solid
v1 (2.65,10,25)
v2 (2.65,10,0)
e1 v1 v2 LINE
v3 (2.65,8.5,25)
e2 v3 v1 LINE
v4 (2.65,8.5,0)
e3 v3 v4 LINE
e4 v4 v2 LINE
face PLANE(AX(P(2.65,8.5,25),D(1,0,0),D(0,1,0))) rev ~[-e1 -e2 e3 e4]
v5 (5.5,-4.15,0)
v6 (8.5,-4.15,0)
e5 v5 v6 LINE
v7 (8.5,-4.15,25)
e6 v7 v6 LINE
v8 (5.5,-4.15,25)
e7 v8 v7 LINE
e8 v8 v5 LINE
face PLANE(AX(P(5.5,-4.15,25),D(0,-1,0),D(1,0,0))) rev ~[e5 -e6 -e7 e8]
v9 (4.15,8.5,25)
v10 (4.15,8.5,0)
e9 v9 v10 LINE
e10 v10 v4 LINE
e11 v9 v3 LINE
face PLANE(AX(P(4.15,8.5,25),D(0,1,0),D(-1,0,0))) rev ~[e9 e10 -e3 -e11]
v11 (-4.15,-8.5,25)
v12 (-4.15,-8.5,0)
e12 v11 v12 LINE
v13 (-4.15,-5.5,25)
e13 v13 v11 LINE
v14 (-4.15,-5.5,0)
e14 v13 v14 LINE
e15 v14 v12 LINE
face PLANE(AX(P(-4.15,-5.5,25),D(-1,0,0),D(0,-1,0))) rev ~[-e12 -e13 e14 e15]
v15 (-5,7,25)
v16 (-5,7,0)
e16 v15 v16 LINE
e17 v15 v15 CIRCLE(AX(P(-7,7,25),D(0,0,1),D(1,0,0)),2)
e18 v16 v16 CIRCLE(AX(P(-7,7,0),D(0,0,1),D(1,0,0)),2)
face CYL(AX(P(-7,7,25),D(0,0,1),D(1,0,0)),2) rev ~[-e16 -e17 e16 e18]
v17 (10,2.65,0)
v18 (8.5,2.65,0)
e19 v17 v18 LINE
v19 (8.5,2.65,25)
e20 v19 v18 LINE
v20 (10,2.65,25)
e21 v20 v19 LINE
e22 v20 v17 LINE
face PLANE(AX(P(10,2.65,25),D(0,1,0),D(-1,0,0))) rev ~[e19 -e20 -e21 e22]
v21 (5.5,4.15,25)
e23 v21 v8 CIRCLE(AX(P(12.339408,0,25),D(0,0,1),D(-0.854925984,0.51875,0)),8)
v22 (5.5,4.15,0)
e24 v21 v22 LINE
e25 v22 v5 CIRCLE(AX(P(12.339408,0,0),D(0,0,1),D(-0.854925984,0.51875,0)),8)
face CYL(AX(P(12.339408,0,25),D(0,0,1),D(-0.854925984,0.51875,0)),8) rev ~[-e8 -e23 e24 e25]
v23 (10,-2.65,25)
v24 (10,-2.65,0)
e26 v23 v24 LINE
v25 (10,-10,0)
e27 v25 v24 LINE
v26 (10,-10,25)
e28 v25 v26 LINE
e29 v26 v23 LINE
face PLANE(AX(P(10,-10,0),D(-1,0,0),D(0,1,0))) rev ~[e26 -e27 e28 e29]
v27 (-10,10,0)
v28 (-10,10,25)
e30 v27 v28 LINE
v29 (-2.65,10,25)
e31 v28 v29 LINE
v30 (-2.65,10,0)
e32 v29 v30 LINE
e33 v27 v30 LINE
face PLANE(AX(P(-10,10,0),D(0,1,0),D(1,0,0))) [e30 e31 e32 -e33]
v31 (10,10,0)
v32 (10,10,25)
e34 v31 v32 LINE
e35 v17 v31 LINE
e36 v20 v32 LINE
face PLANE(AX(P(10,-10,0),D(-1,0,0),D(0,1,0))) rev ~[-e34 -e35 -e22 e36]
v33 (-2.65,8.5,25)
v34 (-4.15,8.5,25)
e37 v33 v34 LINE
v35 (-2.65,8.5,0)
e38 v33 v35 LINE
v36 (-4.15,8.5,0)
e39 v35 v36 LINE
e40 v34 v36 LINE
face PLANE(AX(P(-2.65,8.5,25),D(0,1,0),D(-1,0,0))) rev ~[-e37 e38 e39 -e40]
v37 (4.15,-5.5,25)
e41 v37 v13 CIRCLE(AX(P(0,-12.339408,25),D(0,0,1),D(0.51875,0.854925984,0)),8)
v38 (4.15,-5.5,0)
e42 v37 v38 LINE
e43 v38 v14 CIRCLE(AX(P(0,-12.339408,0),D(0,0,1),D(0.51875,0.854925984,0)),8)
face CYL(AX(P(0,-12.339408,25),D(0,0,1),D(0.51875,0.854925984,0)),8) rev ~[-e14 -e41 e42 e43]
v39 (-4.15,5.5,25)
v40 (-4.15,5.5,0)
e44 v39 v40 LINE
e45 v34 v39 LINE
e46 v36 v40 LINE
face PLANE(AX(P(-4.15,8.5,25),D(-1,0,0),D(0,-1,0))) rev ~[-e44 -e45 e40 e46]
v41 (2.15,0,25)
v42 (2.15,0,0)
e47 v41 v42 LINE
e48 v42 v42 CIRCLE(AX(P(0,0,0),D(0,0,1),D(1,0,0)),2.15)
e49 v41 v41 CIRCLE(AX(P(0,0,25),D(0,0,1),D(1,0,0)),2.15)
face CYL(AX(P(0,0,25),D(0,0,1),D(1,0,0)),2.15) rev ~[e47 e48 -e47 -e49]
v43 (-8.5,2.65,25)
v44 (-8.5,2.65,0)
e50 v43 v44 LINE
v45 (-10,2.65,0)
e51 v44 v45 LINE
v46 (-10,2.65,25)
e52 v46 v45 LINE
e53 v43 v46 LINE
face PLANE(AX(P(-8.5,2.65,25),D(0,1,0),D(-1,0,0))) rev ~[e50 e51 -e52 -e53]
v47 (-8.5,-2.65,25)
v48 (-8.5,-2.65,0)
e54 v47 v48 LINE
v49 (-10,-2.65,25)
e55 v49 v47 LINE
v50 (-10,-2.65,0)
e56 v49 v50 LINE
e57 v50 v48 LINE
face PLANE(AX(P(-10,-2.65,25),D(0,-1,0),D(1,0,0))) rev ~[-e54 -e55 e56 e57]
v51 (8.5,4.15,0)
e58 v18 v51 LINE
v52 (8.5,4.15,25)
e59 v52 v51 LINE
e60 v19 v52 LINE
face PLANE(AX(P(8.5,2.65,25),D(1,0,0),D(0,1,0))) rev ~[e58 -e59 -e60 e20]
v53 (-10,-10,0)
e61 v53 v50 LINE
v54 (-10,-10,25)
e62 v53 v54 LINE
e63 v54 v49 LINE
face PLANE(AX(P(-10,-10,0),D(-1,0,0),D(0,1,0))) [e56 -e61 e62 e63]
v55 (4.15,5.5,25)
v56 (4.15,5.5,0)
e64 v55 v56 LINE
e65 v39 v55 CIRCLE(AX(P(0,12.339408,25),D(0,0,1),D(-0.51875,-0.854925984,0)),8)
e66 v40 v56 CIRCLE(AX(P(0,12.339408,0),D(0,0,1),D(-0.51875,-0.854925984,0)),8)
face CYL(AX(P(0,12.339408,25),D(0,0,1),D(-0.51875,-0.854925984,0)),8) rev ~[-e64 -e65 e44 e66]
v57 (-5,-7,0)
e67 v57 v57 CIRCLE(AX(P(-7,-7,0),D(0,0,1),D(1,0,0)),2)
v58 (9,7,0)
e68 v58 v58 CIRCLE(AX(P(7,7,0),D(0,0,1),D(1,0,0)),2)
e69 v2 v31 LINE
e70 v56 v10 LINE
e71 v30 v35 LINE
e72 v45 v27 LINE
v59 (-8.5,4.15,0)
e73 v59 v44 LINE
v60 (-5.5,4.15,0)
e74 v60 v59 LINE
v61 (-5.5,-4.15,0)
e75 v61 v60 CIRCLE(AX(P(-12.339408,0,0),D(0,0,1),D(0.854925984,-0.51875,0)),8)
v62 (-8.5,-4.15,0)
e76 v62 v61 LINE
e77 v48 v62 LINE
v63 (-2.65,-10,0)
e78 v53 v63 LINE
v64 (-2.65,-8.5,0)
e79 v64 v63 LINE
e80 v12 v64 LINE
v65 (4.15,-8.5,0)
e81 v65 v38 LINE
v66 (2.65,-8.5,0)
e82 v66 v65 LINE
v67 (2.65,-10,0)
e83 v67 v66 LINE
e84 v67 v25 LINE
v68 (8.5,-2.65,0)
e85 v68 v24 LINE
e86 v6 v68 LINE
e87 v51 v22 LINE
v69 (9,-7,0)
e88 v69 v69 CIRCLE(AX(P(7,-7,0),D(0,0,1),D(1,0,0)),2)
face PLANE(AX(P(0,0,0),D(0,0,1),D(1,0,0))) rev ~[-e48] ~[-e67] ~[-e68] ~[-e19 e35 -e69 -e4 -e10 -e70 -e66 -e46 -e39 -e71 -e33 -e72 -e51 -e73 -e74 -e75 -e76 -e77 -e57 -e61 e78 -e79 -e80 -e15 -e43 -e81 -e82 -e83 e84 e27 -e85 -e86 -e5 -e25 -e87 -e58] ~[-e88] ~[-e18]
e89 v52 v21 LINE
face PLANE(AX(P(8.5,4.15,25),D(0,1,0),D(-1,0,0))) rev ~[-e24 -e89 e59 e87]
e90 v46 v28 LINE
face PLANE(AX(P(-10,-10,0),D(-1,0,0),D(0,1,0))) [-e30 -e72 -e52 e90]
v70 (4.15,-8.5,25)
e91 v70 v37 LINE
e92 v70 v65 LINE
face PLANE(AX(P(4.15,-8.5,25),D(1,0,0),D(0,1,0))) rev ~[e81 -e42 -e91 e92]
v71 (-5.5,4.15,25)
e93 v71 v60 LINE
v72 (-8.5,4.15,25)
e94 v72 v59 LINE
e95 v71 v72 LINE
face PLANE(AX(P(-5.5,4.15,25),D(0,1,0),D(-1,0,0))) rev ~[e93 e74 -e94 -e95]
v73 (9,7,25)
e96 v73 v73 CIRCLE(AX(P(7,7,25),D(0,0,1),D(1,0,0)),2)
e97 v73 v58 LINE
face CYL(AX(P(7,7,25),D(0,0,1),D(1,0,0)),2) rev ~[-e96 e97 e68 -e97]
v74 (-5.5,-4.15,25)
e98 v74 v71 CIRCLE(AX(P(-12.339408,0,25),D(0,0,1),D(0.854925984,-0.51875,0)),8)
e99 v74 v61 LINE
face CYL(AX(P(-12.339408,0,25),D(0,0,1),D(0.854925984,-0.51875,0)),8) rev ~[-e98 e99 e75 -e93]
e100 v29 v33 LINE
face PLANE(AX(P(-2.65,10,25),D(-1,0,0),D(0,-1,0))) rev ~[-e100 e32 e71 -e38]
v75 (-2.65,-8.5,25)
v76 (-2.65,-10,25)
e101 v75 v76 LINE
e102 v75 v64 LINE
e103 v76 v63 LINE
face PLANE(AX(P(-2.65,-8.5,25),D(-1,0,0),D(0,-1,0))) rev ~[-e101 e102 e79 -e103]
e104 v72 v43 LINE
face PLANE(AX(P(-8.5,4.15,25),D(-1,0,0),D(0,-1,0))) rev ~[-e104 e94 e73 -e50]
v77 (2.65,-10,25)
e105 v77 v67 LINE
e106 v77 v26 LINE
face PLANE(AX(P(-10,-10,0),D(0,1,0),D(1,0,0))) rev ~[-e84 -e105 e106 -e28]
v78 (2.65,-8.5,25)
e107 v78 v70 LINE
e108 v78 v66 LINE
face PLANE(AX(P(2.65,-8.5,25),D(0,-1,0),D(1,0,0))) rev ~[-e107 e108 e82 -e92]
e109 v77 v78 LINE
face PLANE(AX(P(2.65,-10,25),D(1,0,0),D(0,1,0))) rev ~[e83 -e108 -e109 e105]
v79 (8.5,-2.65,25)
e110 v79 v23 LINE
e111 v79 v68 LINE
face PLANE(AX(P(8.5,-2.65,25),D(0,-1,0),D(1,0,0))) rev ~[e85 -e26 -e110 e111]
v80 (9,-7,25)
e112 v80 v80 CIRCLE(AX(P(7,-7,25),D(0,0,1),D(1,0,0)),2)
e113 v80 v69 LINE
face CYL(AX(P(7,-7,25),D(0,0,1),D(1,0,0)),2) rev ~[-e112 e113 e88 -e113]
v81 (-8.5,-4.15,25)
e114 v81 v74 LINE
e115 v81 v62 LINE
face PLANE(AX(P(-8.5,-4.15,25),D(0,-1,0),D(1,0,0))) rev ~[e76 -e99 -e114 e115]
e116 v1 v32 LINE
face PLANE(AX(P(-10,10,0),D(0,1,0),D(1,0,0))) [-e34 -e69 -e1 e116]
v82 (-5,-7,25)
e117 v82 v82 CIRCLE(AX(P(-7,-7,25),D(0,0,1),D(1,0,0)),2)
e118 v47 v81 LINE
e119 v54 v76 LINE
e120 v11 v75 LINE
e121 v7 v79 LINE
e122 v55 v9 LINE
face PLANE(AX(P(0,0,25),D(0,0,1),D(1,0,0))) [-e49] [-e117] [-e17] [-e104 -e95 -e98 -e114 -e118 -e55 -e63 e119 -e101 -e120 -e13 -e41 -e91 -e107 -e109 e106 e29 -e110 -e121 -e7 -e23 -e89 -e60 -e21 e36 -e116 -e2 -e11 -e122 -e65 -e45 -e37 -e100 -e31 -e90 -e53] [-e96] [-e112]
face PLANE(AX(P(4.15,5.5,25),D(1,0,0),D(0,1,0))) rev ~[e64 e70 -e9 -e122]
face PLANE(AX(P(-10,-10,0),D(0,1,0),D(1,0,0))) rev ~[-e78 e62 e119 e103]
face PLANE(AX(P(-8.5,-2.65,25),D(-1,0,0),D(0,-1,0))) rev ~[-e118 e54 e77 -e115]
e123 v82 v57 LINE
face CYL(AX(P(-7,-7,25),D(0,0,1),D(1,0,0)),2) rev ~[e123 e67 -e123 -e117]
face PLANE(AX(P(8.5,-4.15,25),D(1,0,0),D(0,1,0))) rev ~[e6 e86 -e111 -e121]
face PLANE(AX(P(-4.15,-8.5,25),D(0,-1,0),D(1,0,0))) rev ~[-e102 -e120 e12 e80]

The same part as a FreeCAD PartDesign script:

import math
import FreeCAD as App
import Part
import Sketcher


def add_polygon(sketch, points):
    """Adds a closed chain of lines whose ends are joined by coincident constraints."""
    first, n = sketch.GeometryCount, len(points)
    for a, b in zip(points, points[1:] + points[:1]):
        sketch.addGeometry(Part.LineSegment(App.Vector(*a, 0), App.Vector(*b, 0)), False)
    for i in range(n):
        sketch.addConstraint(Sketcher.Constraint("Coincident", first + i, 2, first + (i + 1) % n, 1))

doc = App.newDocument("Part")
body = doc.addObject("PartDesign::Body", "Body")

sketch1 = body.newObject("Sketcher::SketchObject", "Sketch")
sketch1.AttachmentSupport = (doc.getObject("XY_Plane"), [""])
sketch1.MapMode = "FlatFace"
add_polygon(sketch1, [(-10, 10), (-10, -10), (10, -10), (10, 10)])
sketch1.addConstraint([
    Sketcher.Constraint("Vertical", 0),
    Sketcher.Constraint("Horizontal", 1),
    Sketcher.Constraint("Vertical", 2),
    Sketcher.Constraint("Horizontal", 3),
    Sketcher.Constraint("Symmetric", 0, 2, 2, 2, -1, 1),
    Sketcher.Constraint("Equal", 3, 0),
    Sketcher.Constraint("DistanceX", 1, 1, 1, 2, 20.0),
])
pad1 = body.newObject("PartDesign::Pad", "Pad")
pad1.Profile = sketch1
pad1.Length = 25

sketch2 = body.newObject("Sketcher::SketchObject", "Sketch001")
sketch2.AttachmentSupport = (doc.getObject("XY_Plane"), [""])
sketch2.MapMode = "FlatFace"
sketch2.AttachmentOffset = App.Placement(App.Vector(0, 0, 25), App.Rotation())
sketch2.addGeometry([
    Part.Circle(App.Vector(0, 0, 0), App.Vector(0, 0, 1), 2.1),
    Part.Circle(App.Vector(-7, 7, 0), App.Vector(0, 0, 1), 2),
    Part.Circle(App.Vector(7, 7, 0), App.Vector(0, 0, 1), 2),
    Part.Circle(App.Vector(7, -7, 0), App.Vector(0, 0, 1), 2),
    Part.Circle(App.Vector(-7, -7, 0), App.Vector(0, 0, 1), 2),
    Part.LineSegment(App.Vector(-2.6, 10, 0), App.Vector(-2.6, 8.5, 0)),
    Part.LineSegment(App.Vector(-2.6, 8.5, 0), App.Vector(-4.2, 8.5, 0)),
    Part.LineSegment(App.Vector(-4.2, 8.5, 0), App.Vector(-4.2, 5.5, 0)),
    Part.ArcOfCircle(Part.Circle(App.Vector(0, 12.3, 0), App.Vector(0, 0, 1), 8), math.radians(-121), math.radians(-59)),
    Part.LineSegment(App.Vector(4.2, 5.5, 0), App.Vector(4.2, 8.5, 0)),
    Part.LineSegment(App.Vector(4.2, 8.5, 0), App.Vector(2.6, 8.5, 0)),
    Part.LineSegment(App.Vector(2.6, 8.5, 0), App.Vector(2.6, 10, 0)),
    Part.LineSegment(App.Vector(2.6, 10, 0), App.Vector(-2.6, 10, 0)),
    Part.LineSegment(App.Vector(10, 2.6, 0), App.Vector(8.5, 2.6, 0)),
    Part.LineSegment(App.Vector(8.5, 2.6, 0), App.Vector(8.5, 4.2, 0)),
    Part.LineSegment(App.Vector(8.5, 4.2, 0), App.Vector(5.5, 4.2, 0)),
    Part.ArcOfCircle(Part.Circle(App.Vector(12.3, 0, 0), App.Vector(0, 0, 1), 8), math.radians(149), math.radians(211)),
    Part.LineSegment(App.Vector(5.5, -4.2, 0), App.Vector(8.5, -4.2, 0)),
    Part.LineSegment(App.Vector(8.5, -4.2, 0), App.Vector(8.5, -2.6, 0)),
    Part.LineSegment(App.Vector(8.5, -2.6, 0), App.Vector(10, -2.6, 0)),
    Part.LineSegment(App.Vector(10, -2.6, 0), App.Vector(10, 2.6, 0)),
    Part.LineSegment(App.Vector(2.6, -10, 0), App.Vector(2.6, -8.5, 0)),
    Part.LineSegment(App.Vector(2.6, -8.5, 0), App.Vector(4.2, -8.5, 0)),
    Part.LineSegment(App.Vector(4.2, -8.5, 0), App.Vector(4.2, -5.5, 0)),
    Part.ArcOfCircle(Part.Circle(App.Vector(0, -12.3, 0), App.Vector(0, 0, 1), 8), math.radians(59), math.radians(121)),
    Part.LineSegment(App.Vector(-4.2, -5.5, 0), App.Vector(-4.2, -8.5, 0)),
    Part.LineSegment(App.Vector(-4.2, -8.5, 0), App.Vector(-2.6, -8.5, 0)),
    Part.LineSegment(App.Vector(-2.6, -8.5, 0), App.Vector(-2.6, -10, 0)),
    Part.LineSegment(App.Vector(-2.6, -10, 0), App.Vector(2.6, -10, 0)),
    Part.LineSegment(App.Vector(-10, -2.6, 0), App.Vector(-8.5, -2.6, 0)),
    Part.LineSegment(App.Vector(-8.5, -2.6, 0), App.Vector(-8.5, -4.2, 0)),
    Part.LineSegment(App.Vector(-8.5, -4.2, 0), App.Vector(-5.5, -4.2, 0)),
    Part.ArcOfCircle(Part.Circle(App.Vector(-12.3, 0, 0), App.Vector(0, 0, 1), 8), math.radians(-31), math.radians(31)),
    Part.LineSegment(App.Vector(-5.5, 4.2, 0), App.Vector(-8.5, 4.2, 0)),
    Part.LineSegment(App.Vector(-8.5, 4.2, 0), App.Vector(-8.5, 2.6, 0)),
    Part.LineSegment(App.Vector(-8.5, 2.6, 0), App.Vector(-10, 2.6, 0)),
    Part.LineSegment(App.Vector(-10, 2.6, 0), App.Vector(-10, -2.6, 0)),
], False)
sketch2.addConstraint([
    Sketcher.Constraint("Coincident", 5, 2, 6, 1),
    Sketcher.Constraint("Coincident", 6, 2, 7, 1),
    Sketcher.Constraint("Coincident", 7, 2, 8, 1),
    Sketcher.Constraint("Coincident", 8, 2, 9, 1),
    Sketcher.Constraint("Coincident", 9, 2, 10, 1),
    Sketcher.Constraint("Coincident", 10, 2, 11, 1),
    Sketcher.Constraint("Coincident", 11, 2, 12, 1),
    Sketcher.Constraint("Coincident", 12, 2, 5, 1),
    Sketcher.Constraint("Coincident", 13, 2, 14, 1),
    Sketcher.Constraint("Coincident", 14, 2, 15, 1),
    Sketcher.Constraint("Coincident", 15, 2, 16, 1),
    Sketcher.Constraint("Coincident", 16, 2, 17, 1),
    Sketcher.Constraint("Coincident", 17, 2, 18, 1),
    Sketcher.Constraint("Coincident", 18, 2, 19, 1),
    Sketcher.Constraint("Coincident", 19, 2, 20, 1),
    Sketcher.Constraint("Coincident", 20, 2, 13, 1),
    Sketcher.Constraint("Coincident", 21, 2, 22, 1),
    Sketcher.Constraint("Coincident", 22, 2, 23, 1),
    Sketcher.Constraint("Coincident", 23, 2, 24, 1),
    Sketcher.Constraint("Coincident", 24, 2, 25, 1),
    Sketcher.Constraint("Coincident", 25, 2, 26, 1),
    Sketcher.Constraint("Coincident", 26, 2, 27, 1),
    Sketcher.Constraint("Coincident", 27, 2, 28, 1),
    Sketcher.Constraint("Coincident", 28, 2, 21, 1),
    Sketcher.Constraint("Coincident", 29, 2, 30, 1),
    Sketcher.Constraint("Coincident", 30, 2, 31, 1),
    Sketcher.Constraint("Coincident", 31, 2, 32, 1),
    Sketcher.Constraint("Coincident", 32, 2, 33, 1),
    Sketcher.Constraint("Coincident", 33, 2, 34, 1),
    Sketcher.Constraint("Coincident", 34, 2, 35, 1),
    Sketcher.Constraint("Coincident", 35, 2, 36, 1),
    Sketcher.Constraint("Coincident", 36, 2, 29, 1),
    Sketcher.Constraint("Vertical", 5),
    Sketcher.Constraint("Horizontal", 6),
    Sketcher.Constraint("Vertical", 7),
    Sketcher.Constraint("Vertical", 9),
    Sketcher.Constraint("Horizontal", 10),
    Sketcher.Constraint("Vertical", 11),
    Sketcher.Constraint("Horizontal", 12),
    Sketcher.Constraint("Horizontal", 13),
    Sketcher.Constraint("Vertical", 14),
    Sketcher.Constraint("Horizontal", 15),
    Sketcher.Constraint("Horizontal", 17),
    Sketcher.Constraint("Vertical", 18),
    Sketcher.Constraint("Horizontal", 19),
    Sketcher.Constraint("Vertical", 20),
    Sketcher.Constraint("Vertical", 21),
    Sketcher.Constraint("Horizontal", 22),
    Sketcher.Constraint("Vertical", 23),
    Sketcher.Constraint("Vertical", 25),
    Sketcher.Constraint("Horizontal", 26),
    Sketcher.Constraint("Vertical", 27),
    Sketcher.Constraint("Horizontal", 28),
    Sketcher.Constraint("Horizontal", 29),
    Sketcher.Constraint("Vertical", 30),
    Sketcher.Constraint("Horizontal", 31),
    Sketcher.Constraint("Horizontal", 33),
    Sketcher.Constraint("Vertical", 34),
    Sketcher.Constraint("Horizontal", 35),
    Sketcher.Constraint("Vertical", 36),
    Sketcher.Constraint("Coincident", 0, 3, -1, 1),
    Sketcher.Constraint("Equal", 1, 2),
    Sketcher.Constraint("Equal", 2, 3),
    Sketcher.Constraint("Equal", 3, 4),
    Sketcher.Constraint("Equal", 8, 16),
    Sketcher.Constraint("Equal", 16, 24),
    Sketcher.Constraint("Equal", 24, 32),
    Sketcher.Constraint("Symmetric", 1, 3, 3, 3, -1, 1),
    Sketcher.Constraint("Symmetric", 2, 3, 4, 3, -1, 1),
    Sketcher.Constraint("Symmetric", 8, 3, 24, 3, -1, 1),
    Sketcher.Constraint("Symmetric", 16, 3, 32, 3, -1, 1),
    Sketcher.Constraint("Symmetric", 5, 2, 21, 2, -1, 1),
    Sketcher.Constraint("Symmetric", 9, 2, 25, 2, -1, 1),
    Sketcher.Constraint("Symmetric", 11, 2, 27, 2, -1, 1),
    Sketcher.Constraint("Symmetric", 13, 2, 29, 2, -1, 1),
    Sketcher.Constraint("Symmetric", 17, 2, 33, 2, -1, 1),
    Sketcher.Constraint("Symmetric", 19, 2, 35, 2, -1, 1),
    Sketcher.Constraint("Symmetric", 1, 3, 2, 3, -2),
    Sketcher.Constraint("Symmetric", 7, 2, 8, 2, -2),
    Sketcher.Constraint("Symmetric", 5, 2, 10, 2, -2),
    Sketcher.Constraint("Symmetric", 18, 2, 29, 2, -2),
    Sketcher.Constraint("Symmetric", 16, 2, 31, 2, -2),
    Sketcher.Constraint("Horizontal", 23, 2, 24, 2),
    Sketcher.Constraint("Horizontal", 15, 2, 32, 2),
    Sketcher.Constraint("Equal", 10, 13),
    Sketcher.Constraint("Equal", 35, 5),
    Sketcher.Constraint("Equal", 33, 7),
    Sketcher.Constraint("Equal", 11, 14),
    Sketcher.Constraint("Equal", 28, 20),
    Sketcher.Constraint("Diameter", 1, 4.0),
    Sketcher.Constraint("Radius", 8, 8.0),
    Sketcher.Constraint("Diameter", 0, 4.3),
    Sketcher.Constraint("DistanceX", 15, 2, 15, 1, 3.0),
    Sketcher.Constraint("DistanceX", 6, 2, 6, 1, 1.5),
    Sketcher.Constraint("DistanceX", 12, 2, 12, 1, 5.3),
    Sketcher.Constraint("DistanceX", 1, 3, -1, 1, 7.0),
    Sketcher.Constraint("DistanceY", -1, 1, 1, 3, 7.0),
    Sketcher.Constraint("DistanceY", -1, 1, 11, 2, 10.0),
    Sketcher.Constraint("DistanceX", -1, 1, 19, 2, 10.0),
])
pocket1 = body.newObject("PartDesign::Pocket", "Pocket")
pocket1.Profile = sketch2
pocket1.Length = 300

doc.recompute()
